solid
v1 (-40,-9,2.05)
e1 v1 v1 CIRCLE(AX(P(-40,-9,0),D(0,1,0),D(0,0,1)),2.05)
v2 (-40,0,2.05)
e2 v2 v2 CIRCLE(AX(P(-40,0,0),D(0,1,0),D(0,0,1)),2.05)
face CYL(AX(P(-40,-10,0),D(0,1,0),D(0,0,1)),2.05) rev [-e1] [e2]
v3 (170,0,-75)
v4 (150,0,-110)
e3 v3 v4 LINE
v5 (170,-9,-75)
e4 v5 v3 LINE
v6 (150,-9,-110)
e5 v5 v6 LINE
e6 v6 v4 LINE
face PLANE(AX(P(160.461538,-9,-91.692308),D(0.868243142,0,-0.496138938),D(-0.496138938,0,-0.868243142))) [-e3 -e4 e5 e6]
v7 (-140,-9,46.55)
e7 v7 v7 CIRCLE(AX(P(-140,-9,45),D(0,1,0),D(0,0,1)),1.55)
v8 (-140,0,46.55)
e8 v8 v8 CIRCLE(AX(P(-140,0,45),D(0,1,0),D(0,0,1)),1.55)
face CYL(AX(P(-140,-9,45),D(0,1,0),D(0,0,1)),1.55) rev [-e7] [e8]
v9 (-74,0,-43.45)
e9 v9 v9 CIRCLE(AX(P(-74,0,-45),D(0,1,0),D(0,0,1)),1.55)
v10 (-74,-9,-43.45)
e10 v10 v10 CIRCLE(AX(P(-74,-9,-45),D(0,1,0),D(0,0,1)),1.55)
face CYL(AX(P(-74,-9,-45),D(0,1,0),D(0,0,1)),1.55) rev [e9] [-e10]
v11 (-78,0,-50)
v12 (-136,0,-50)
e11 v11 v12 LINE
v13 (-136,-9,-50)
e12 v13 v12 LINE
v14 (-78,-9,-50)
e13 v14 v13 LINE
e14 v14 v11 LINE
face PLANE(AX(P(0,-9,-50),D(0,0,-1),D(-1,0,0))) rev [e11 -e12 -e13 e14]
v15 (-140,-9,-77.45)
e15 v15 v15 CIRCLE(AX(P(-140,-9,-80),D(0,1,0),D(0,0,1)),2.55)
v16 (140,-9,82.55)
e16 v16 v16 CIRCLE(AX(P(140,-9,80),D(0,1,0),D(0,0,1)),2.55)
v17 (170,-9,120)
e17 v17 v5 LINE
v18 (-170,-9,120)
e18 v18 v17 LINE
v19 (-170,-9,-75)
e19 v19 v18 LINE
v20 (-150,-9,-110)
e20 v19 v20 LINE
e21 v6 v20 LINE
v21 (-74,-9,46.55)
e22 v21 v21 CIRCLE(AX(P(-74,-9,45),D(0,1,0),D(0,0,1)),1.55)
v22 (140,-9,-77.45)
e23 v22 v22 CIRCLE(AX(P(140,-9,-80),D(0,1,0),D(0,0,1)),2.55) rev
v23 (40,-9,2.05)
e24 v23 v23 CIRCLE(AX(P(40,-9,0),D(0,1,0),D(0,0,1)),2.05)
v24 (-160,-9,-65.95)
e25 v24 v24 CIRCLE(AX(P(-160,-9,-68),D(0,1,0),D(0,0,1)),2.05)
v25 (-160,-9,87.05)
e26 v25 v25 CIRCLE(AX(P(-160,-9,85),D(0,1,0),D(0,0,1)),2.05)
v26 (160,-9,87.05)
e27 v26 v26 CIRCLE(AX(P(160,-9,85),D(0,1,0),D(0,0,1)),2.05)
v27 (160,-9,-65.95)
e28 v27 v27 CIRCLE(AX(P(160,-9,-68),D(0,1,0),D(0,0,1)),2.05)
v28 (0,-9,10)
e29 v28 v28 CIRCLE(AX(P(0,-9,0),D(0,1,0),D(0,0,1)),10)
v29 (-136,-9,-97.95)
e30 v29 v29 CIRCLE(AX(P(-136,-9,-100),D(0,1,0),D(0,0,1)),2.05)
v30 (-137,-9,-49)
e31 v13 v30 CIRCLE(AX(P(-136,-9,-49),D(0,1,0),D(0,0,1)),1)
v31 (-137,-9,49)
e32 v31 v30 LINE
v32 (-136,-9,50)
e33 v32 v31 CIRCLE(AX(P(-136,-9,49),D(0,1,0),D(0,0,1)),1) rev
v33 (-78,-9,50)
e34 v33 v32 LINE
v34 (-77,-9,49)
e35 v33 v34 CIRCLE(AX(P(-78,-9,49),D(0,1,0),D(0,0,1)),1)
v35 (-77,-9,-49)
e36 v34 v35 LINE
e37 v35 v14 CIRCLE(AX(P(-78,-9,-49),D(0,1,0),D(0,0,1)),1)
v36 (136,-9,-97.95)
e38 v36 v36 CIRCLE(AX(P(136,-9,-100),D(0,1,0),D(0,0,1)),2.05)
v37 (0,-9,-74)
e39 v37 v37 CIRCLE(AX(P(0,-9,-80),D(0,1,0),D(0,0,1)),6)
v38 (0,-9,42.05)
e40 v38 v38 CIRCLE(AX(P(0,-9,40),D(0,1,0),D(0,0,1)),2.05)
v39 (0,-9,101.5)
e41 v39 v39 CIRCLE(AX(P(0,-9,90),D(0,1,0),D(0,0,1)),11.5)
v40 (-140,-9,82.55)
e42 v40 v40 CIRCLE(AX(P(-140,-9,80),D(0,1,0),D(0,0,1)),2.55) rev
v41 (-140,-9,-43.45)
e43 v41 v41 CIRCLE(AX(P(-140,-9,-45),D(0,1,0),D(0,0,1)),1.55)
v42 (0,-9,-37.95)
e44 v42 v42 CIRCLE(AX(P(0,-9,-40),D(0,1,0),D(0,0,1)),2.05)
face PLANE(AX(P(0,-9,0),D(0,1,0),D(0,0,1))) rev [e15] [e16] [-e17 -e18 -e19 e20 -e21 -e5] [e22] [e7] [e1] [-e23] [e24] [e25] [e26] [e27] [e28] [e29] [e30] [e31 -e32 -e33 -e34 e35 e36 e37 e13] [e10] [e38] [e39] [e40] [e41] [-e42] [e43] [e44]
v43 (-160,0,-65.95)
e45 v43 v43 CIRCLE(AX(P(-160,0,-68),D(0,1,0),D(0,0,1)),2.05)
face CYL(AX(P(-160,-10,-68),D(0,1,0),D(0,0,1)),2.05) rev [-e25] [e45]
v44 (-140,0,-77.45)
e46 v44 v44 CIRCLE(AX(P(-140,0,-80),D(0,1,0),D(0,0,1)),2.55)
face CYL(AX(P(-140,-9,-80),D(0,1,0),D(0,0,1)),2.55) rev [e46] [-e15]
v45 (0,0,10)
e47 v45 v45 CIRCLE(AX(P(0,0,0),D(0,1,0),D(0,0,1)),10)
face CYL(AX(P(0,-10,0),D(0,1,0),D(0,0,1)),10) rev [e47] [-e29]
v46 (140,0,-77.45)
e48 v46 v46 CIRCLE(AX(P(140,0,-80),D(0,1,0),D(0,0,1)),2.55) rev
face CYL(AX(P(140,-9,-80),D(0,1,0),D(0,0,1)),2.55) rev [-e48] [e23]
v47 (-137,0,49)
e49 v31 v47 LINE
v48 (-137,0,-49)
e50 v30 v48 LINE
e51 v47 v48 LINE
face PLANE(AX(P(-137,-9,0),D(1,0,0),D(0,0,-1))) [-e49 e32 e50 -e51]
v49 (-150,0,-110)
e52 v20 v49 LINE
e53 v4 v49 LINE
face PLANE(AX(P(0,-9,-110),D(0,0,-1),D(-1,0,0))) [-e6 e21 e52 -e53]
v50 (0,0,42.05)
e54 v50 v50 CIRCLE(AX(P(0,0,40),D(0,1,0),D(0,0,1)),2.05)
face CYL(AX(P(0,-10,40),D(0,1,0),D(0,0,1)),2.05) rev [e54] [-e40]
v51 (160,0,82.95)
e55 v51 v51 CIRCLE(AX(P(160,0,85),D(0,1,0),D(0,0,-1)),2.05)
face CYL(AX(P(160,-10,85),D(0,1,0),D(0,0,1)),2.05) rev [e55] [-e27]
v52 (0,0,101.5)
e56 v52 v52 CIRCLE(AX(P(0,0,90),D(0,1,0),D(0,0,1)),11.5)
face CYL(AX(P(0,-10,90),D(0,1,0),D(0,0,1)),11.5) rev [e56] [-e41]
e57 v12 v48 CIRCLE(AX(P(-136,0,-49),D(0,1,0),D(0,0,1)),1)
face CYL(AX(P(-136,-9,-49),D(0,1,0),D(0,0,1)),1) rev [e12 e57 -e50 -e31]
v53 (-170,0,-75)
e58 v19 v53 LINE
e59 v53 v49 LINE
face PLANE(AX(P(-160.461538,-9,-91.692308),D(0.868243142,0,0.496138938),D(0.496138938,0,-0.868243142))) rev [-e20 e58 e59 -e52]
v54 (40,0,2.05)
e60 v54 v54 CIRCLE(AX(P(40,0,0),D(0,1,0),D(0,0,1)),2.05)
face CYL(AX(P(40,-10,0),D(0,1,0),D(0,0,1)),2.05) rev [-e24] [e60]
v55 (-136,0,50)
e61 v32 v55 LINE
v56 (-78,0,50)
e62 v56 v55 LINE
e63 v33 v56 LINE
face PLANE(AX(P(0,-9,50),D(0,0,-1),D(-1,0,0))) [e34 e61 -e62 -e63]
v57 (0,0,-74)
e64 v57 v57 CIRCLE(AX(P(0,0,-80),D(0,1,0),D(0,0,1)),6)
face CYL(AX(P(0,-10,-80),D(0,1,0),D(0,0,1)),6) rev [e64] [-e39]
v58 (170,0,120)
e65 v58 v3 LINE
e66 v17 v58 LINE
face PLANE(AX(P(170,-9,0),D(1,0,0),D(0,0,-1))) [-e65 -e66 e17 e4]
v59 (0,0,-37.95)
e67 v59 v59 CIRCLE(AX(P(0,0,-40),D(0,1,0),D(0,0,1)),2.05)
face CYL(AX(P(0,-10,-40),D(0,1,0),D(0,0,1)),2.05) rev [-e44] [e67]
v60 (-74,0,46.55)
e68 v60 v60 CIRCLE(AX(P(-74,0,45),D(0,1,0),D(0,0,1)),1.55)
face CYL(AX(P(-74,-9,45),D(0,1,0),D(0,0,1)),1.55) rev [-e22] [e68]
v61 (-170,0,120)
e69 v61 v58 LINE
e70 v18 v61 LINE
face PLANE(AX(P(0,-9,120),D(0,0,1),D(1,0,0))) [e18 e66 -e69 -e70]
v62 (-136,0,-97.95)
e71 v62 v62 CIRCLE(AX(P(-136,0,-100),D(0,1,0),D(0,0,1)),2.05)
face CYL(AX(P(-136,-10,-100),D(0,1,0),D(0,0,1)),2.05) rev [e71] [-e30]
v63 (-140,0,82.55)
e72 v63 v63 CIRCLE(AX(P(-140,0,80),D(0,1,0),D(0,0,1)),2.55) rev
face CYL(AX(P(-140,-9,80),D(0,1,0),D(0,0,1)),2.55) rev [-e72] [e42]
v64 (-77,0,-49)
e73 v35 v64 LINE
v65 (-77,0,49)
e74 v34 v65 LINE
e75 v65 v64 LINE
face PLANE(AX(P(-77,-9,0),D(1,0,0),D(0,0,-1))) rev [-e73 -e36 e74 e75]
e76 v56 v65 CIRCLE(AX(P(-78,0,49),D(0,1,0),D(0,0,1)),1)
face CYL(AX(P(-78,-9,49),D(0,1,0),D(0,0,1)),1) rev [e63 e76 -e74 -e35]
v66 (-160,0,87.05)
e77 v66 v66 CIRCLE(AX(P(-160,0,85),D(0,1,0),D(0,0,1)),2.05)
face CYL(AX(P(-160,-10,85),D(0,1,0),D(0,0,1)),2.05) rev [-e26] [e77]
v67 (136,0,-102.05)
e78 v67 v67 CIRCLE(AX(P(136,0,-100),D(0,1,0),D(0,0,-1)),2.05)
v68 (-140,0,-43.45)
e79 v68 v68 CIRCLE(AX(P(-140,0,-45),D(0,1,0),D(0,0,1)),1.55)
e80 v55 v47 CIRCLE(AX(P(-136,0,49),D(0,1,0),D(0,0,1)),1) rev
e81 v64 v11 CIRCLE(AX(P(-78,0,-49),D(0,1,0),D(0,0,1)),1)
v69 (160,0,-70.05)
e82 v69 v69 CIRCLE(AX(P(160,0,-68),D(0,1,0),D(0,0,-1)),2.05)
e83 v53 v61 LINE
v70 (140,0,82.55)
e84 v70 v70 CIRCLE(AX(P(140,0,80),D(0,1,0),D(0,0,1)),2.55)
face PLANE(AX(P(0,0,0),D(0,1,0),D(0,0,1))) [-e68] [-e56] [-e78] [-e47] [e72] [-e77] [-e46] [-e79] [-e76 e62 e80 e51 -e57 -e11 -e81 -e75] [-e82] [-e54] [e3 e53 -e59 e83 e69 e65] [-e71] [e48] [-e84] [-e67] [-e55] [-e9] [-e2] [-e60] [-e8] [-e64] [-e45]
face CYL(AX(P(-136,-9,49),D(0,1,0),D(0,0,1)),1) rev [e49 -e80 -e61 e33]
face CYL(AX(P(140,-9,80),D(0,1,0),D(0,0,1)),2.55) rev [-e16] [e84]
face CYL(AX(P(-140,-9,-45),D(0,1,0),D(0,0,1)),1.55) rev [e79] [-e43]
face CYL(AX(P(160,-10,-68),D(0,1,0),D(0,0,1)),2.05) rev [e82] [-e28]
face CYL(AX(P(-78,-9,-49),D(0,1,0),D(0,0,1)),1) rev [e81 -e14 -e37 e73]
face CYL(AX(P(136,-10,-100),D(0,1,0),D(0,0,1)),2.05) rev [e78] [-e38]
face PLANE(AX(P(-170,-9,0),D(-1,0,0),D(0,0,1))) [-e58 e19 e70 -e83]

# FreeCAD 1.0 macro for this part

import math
import FreeCAD as App
import Part
import Sketcher


def add_polygon(sketch, points):
    """Adds a closed chain of lines whose ends are joined by coincident constraints."""
    first, n = sketch.GeometryCount, len(points)
    for a, b in zip(points, points[1:] + points[:1]):
        sketch.addGeometry(Part.LineSegment(App.Vector(*a, 0), App.Vector(*b, 0)), False)
    for i in range(n):
        sketch.addConstraint(Sketcher.Constraint("Coincident", first + i, 2, first + (i + 1) % n, 1))

doc = App.newDocument("Part")
body = doc.addObject("PartDesign::Body", "Body")

sketch1 = body.newObject("Sketcher::SketchObject", "Sketch")
sketch1.AttachmentSupport = (doc.getObject("XZ_Plane"), [""])
sketch1.MapMode = "FlatFace"
add_polygon(sketch1, [(-170, 120), (170, 120), (170, -75), (150, -110), (-150, -110), (-170, -75)])
sketch1.addGeometry(Part.Circle(App.Vector(-140, 80, 0), App.Vector(0, 0, 1), 2.5), False)
sketch1.addGeometry(Part.Circle(App.Vector(140, 80, 0), App.Vector(0, 0, 1), 2.5), False)
sketch1.addGeometry(Part.Circle(App.Vector(-140, -80, 0), App.Vector(0, 0, 1), 2.5), False)
sketch1.addGeometry(Part.Circle(App.Vector(140, -80, 0), App.Vector(0, 0, 1), 2.5), False)
sketch1.addConstraint([
    Sketcher.Constraint("Horizontal", 0),
    Sketcher.Constraint("Vertical", 1),
    Sketcher.Constraint("Horizontal", 3),
    Sketcher.Constraint("Vertical", 5),
    Sketcher.Constraint("Equal", 6, 7),
    Sketcher.Constraint("Equal", 7, 8),
    Sketcher.Constraint("Equal", 8, 9),
    Sketcher.Constraint("Symmetric", 7, 3, 8, 3, -1, 1),
    Sketcher.Constraint("Symmetric", 6, 3, 9, 3, -1, 1),
    Sketcher.Constraint("Symmetric", 6, 3, 7, 3, -2),
    Sketcher.Constraint("Symmetric", 1, 2, 4, 2, -2),
    Sketcher.Constraint("Equal", 2, 4),
    Sketcher.Constraint("Diameter", 6, 5.1),
    Sketcher.Constraint("DistanceX", 0, 1, 0, 2, 340.0),
    Sketcher.Constraint("DistanceX", 3, 2, 3, 1, 300.0),
    Sketcher.Constraint("DistanceY", 1, 2, 1, 1, 195.0),
    Sketcher.Constraint("DistanceX", 6, 3, -1, 1, 140.0),
    Sketcher.Constraint("DistanceY", -1, 1, 6, 3, 80.0),
    Sketcher.Constraint("DistanceY", -1, 1, 0, 2, 120.0),
    Sketcher.Constraint("DistanceY", 2, 2, -1, 1, 110.0),
])
pad1 = body.newObject("PartDesign::Pad", "Pad")
pad1.Profile = sketch1
pad1.Length = 9

sketch2 = body.newObject("Sketcher::SketchObject", "Sketch001")
sketch2.AttachmentSupport = (doc.getObject("XZ_Plane"), [""])
sketch2.MapMode = "FlatFace"
sketch2.addGeometry([
    Part.Circle(App.Vector(0, 0, 0), App.Vector(0, 0, 1), 10),
    Part.Circle(App.Vector(0, 90, 0), App.Vector(0, 0, 1), 11.5),
    Part.Circle(App.Vector(0, -40, 0), App.Vector(0, 0, 1), 2),
    Part.Circle(App.Vector(40, 0, 0), App.Vector(0, 0, 1), 2),
    Part.Circle(App.Vector(0, 40, 0), App.Vector(0, 0, 1), 2),
    Part.Circle(App.Vector(-40, 0, 0), App.Vector(0, 0, 1), 2),
    Part.Circle(App.Vector(0, -80, 0), App.Vector(0, 0, 1), 6),
], False)
sketch2.addConstraint([
    Sketcher.Constraint("Coincident", 0, 3, -1, 1),
    Sketcher.Constraint("Equal", 2, 3),
    Sketcher.Constraint("Equal", 3, 4),
    Sketcher.Constraint("Equal", 4, 5),
    Sketcher.Constraint("Symmetric", 2, 3, 4, 3, -1, 1),
    Sketcher.Constraint("Symmetric", 3, 3, 5, 3, -1, 1),
    Sketcher.Constraint("PointOnObject", 1, 3, -2),
    Sketcher.Constraint("PointOnObject", 2, 3, -2),
    Sketcher.Constraint("PointOnObject", 3, 3, -1),
    Sketcher.Constraint("PointOnObject", 6, 3, -2),
    Sketcher.Constraint("Diameter", 0, 20.0),
    Sketcher.Constraint("Diameter", 1, 23.0),
    Sketcher.Constraint("Diameter", 6, 12.0),
    Sketcher.Constraint("Diameter", 2, 4.1),
    Sketcher.Constraint("DistanceY", -1, 1, 1, 3, 90.0),
    Sketcher.Constraint("DistanceY", 2, 3, -1, 1, 40.0),
    Sketcher.Constraint("DistanceX", -1, 1, 3, 3, 40.0),
    Sketcher.Constraint("DistanceY", 6, 3, -1, 1, 80.0),
])
pocket1 = body.newObject("PartDesign::Pocket", "Pocket")
pocket1.Profile = sketch2
pocket1.Length = 10
pocket1.Reversed = True

sketch3 = body.newObject("Sketcher::SketchObject", "Sketch002")
sketch3.AttachmentSupport = (doc.getObject("XZ_Plane"), [""])
sketch3.MapMode = "FlatFace"
add_polygon(sketch3, [(-212.1, -152.1), (-212.1, 162.1), (212.1, 162.1), (212.1, -152.1)])
add_polygon(sketch3, [(-170, 120), (-170, -75), (-150, -110), (150, -110), (170, -75), (170, 120)])
sketch3.addGeometry(Part.Circle(App.Vector(-140, -80, 0), App.Vector(0, 0, 1), 2.5), False)
sketch3.addGeometry(Part.Circle(App.Vector(-140, 80, 0), App.Vector(0, 0, 1), 2.5), False)
sketch3.addGeometry(Part.Circle(App.Vector(-136, -100, 0), App.Vector(0, 0, 1), 2), False)
sketch3.addGeometry(Part.Circle(App.Vector(-160, -68, 0), App.Vector(0, 0, 1), 2), False)
sketch3.addGeometry(Part.Circle(App.Vector(-160, 85, 0), App.Vector(0, 0, 1), 2), False)
sketch3.addGeometry(Part.Circle(App.Vector(160, 85, 0), App.Vector(0, 0, 1), 2), False)
sketch3.addGeometry(Part.Circle(App.Vector(160, -68, 0), App.Vector(0, 0, 1), 2), False)
sketch3.addGeometry(Part.Circle(App.Vector(136, -100, 0), App.Vector(0, 0, 1), 2), False)
sketch3.addConstraint([
    Sketcher.Constraint("Vertical", 0),
    Sketcher.Constraint("Horizontal", 1),
    Sketcher.Constraint("Vertical", 2),
    Sketcher.Constraint("Horizontal", 3),
    Sketcher.Constraint("Vertical", 4),
    Sketcher.Constraint("Horizontal", 6),
    Sketcher.Constraint("Vertical", 8),
    Sketcher.Constraint("Horizontal", 9),
    Sketcher.Constraint("Equal", 10, 11),
    Sketcher.Constraint("Equal", 12, 13),
    Sketcher.Constraint("Equal", 13, 14),
    Sketcher.Constraint("Equal", 14, 15),
    Sketcher.Constraint("Equal", 15, 16),
    Sketcher.Constraint("Equal", 16, 17),
    Sketcher.Constraint("Symmetric", 14, 3, 15, 3, -2),
    Sketcher.Constraint("Symmetric", 13, 3, 16, 3, -2),
    Sketcher.Constraint("Symmetric", 12, 3, 17, 3, -2),
    Sketcher.Constraint("Symmetric", 4, 2, 7, 2, -2),
    Sketcher.Constraint("Symmetric", 10, 3, 11, 3, -1),
    Sketcher.Constraint("Vertical", 13, 3, 14, 3),
    Sketcher.Constraint("Equal", 5, 7),
    Sketcher.Constraint("Diameter", 10, 5.1),
    Sketcher.Constraint("Diameter", 12, 4.1),
    Sketcher.Constraint("DistanceX", 6, 1, 6, 2, 300.0),
    Sketcher.Constraint("DistanceX", 9, 2, 9, 1, 340.0),
    Sketcher.Constraint("DistanceY", 4, 2, 4, 1, 195.0),
    Sketcher.Constraint("DistanceX", 10, 3, -1, 1, 140.0),
    Sketcher.Constraint("DistanceY", 10, 3, -1, 1, 80.0),
    Sketcher.Constraint("DistanceX", 12, 3, -1, 1, 136.0),
    Sketcher.Constraint("DistanceY", 12, 3, -1, 1, 100.0),
    Sketcher.Constraint("DistanceX", 13, 3, -1, 1, 160.0),
    Sketcher.Constraint("DistanceY", 13, 3, -1, 1, 68.0),
    Sketcher.Constraint("DistanceY", -1, 1, 14, 3, 85.0),
    Sketcher.Constraint("DistanceY", 4, 2, -1, 1, 75.0),
    Sketcher.Constraint("DistanceY", 5, 2, -1, 1, 110.0),
    Sketcher.Constraint("DistanceX", 1, 1, 1, 2, 424.118),
    Sketcher.Constraint("DistanceY", 0, 1, 0, 2, 314.118),
    Sketcher.Constraint("DistanceX", 0, 2, -1, 1, 212.059),
    Sketcher.Constraint("DistanceY", -1, 1, 0, 2, 162.059),
])
pocket2 = body.newObject("PartDesign::Pocket", "Pocket001")
pocket2.Profile = sketch3
pocket2.Length = 10
pocket2.Reversed = True

sketch4 = body.newObject("Sketcher::SketchObject", "Sketch003")
sketch4.AttachmentSupport = (doc.getObject("XZ_Plane"), [""])
sketch4.MapMode = "FlatFace"
sketch4.addGeometry([
    Part.Circle(App.Vector(-140, -45, 0), App.Vector(0, 0, 1), 1.6),
    Part.Circle(App.Vector(-74, -45, 0), App.Vector(0, 0, 1), 1.6),
    Part.Circle(App.Vector(-140, 45, 0), App.Vector(0, 0, 1), 1.6),
    Part.Circle(App.Vector(-74, 45, 0), App.Vector(0, 0, 1), 1.6),
    Part.LineSegment(App.Vector(-136, 50, 0), App.Vector(-78, 50, 0)),
    Part.ArcOfCircle(Part.Circle(App.Vector(-78, 49, 0), App.Vector(0, 0, 1), 1), math.radians(0), math.radians(90)),
    Part.LineSegment(App.Vector(-77, 49, 0), App.Vector(-77, -49, 0)),
    Part.ArcOfCircle(Part.Circle(App.Vector(-78, -49, 0), App.Vector(0, 0, 1), 1), math.radians(-90), math.radians(0)),
    Part.LineSegment(App.Vector(-78, -50, 0), App.Vector(-136, -50, 0)),
    Part.ArcOfCircle(Part.Circle(App.Vector(-136, -49, 0), App.Vector(0, 0, 1), 1), math.radians(-180), math.radians(-90)),
    Part.LineSegment(App.Vector(-137, -49, 0), App.Vector(-137, 49, 0)),
    Part.ArcOfCircle(Part.Circle(App.Vector(-136, 49, 0), App.Vector(0, 0, 1), 1), math.radians(90), math.radians(180)),
], False)
sketch4.addConstraint([
    Sketcher.Constraint("Tangent", 4, 2, 5, 2),
    Sketcher.Constraint("Tangent", 5, 1, 6, 1),
    Sketcher.Constraint("Tangent", 6, 2, 7, 2),
    Sketcher.Constraint("Tangent", 7, 1, 8, 1),
    Sketcher.Constraint("Tangent", 8, 2, 9, 2),
    Sketcher.Constraint("Tangent", 9, 1, 10, 1),
    Sketcher.Constraint("Tangent", 10, 2, 11, 2),
    Sketcher.Constraint("Tangent", 11, 1, 4, 1),
    Sketcher.Constraint("Horizontal", 4),
    Sketcher.Constraint("Vertical", 6),
    Sketcher.Constraint("Horizontal", 8),
    Sketcher.Constraint("Vertical", 10),
    Sketcher.Constraint("Equal", 0, 1),
    Sketcher.Constraint("Equal", 1, 2),
    Sketcher.Constraint("Equal", 2, 3),
    Sketcher.Constraint("Equal", 5, 7),
    Sketcher.Constraint("Equal", 7, 9),
    Sketcher.Constraint("Equal", 9, 11),
    Sketcher.Constraint("Symmetric", 0, 3, 2, 3, -1),
    Sketcher.Constraint("Symmetric", 1, 3, 3, 3, -1),
    Sketcher.Constraint("Horizontal", 0, 3, 1, 3),
    Sketcher.Constraint("Radius", 5, 1.0),
    Sketcher.Constraint("Diameter", 0, 3.1),
    Sketcher.Constraint("DistanceX", 4, 1, 4, 2, 58.0),
    Sketcher.Constraint("DistanceY", 6, 2, 6, 1, 98.0),
    Sketcher.Constraint("DistanceX", 0, 3, -1, 1, 140.0),
    Sketcher.Constraint("DistanceY", 0, 3, -1, 1, 45.0),
    Sketcher.Constraint("DistanceX", 1, 3, -1, 1, 74.0),
    Sketcher.Constraint("DistanceX", 5, 3, -1, 1, 78.0),
    Sketcher.Constraint("DistanceY", -1, 1, 5, 3, 49.0),
])
pocket3 = body.newObject("PartDesign::Pocket", "Pocket002")
pocket3.Profile = sketch4
pocket3.Type = "ThroughAll"
pocket3.Reversed = True

doc.recompute()
